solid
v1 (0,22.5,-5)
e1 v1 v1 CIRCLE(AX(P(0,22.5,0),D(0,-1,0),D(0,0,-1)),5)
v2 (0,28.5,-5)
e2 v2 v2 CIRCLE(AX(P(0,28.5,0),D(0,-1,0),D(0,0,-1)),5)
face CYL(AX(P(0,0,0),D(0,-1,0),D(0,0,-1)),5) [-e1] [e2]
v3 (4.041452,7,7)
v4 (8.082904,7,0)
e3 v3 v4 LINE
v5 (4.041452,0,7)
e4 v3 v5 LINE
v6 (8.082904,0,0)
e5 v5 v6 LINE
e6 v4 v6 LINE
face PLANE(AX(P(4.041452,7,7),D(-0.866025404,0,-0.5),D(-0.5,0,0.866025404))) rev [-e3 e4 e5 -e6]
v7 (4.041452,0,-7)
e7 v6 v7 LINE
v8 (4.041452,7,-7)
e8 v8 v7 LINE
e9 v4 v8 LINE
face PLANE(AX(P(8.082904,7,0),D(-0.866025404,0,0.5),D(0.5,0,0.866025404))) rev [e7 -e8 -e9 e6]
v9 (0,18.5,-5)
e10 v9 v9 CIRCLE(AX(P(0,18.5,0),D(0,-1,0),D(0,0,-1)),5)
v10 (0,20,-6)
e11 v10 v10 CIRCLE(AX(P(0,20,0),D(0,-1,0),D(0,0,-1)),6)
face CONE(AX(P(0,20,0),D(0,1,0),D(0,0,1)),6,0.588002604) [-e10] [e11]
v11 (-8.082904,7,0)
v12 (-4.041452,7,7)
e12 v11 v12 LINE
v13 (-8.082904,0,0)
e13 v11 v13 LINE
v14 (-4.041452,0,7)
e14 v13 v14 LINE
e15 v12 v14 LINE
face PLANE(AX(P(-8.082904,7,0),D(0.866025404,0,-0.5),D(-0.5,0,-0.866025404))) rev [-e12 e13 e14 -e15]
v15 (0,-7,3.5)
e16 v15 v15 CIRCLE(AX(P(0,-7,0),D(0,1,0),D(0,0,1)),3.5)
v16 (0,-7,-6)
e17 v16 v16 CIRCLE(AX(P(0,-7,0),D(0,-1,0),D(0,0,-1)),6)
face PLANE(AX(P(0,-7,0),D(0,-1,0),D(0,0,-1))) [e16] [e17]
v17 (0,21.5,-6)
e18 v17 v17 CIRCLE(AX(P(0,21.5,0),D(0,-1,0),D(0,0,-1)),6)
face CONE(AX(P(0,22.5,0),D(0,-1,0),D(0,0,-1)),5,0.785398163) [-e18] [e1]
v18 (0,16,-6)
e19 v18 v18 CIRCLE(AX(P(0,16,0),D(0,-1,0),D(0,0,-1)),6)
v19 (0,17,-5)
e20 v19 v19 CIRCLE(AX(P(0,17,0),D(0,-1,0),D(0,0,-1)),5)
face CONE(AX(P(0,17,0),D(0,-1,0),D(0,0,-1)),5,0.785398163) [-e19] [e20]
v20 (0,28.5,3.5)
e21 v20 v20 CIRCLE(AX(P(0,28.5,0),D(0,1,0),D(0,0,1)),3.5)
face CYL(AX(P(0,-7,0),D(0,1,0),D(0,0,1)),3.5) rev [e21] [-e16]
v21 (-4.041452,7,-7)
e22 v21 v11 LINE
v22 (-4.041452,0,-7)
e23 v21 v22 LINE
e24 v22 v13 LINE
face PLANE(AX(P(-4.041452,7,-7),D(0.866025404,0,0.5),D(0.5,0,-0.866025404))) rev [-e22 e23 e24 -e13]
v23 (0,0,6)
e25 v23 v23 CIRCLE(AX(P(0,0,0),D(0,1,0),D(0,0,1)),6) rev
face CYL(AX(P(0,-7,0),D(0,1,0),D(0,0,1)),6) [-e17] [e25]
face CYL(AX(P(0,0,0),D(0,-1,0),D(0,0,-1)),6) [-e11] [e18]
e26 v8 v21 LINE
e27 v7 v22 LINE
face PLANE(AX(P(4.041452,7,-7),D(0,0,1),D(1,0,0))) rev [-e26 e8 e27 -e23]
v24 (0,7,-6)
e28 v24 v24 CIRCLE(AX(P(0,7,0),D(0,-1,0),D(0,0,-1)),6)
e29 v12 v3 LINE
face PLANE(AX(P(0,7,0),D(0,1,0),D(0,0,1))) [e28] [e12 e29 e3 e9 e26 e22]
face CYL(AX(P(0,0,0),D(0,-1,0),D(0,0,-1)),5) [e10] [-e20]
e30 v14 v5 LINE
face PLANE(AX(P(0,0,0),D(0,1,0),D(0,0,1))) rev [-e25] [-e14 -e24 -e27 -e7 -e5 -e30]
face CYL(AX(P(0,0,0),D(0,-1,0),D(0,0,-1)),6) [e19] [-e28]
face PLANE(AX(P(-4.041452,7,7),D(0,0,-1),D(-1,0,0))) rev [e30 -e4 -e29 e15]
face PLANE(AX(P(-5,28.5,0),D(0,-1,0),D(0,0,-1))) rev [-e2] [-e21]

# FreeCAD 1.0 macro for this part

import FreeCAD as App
import Part
import Sketcher
Q = App.Units.Quantity


def add_polygon(sketch, points):
    """Adds a closed chain of lines whose ends are joined by coincident constraints."""
    first, n = sketch.GeometryCount, len(points)
    for a, b in zip(points, points[1:] + points[:1]):
        sketch.addGeometry(Part.LineSegment(App.Vector(*a, 0), App.Vector(*b, 0)), False)
    for i in range(n):
        sketch.addConstraint(Sketcher.Constraint("Coincident", first + i, 2, first + (i + 1) % n, 1))

doc = App.newDocument("Part")
body = doc.addObject("PartDesign::Body", "Body")

# Sketch on XZ plane
sketch1 = body.newObject("Sketcher::SketchObject", "Sketch")
sketch1.AttachmentSupport = (doc.getObject("XZ_Plane"), [""])
sketch1.MapMode = "FlatFace"
add_polygon(sketch1, [(8, 0), (4, -7), (-4, -7), (-8, 0), (-4, 7), (4, 7)])  # lines 0-5
sketch1.addConstraint(Sketcher.Constraint("Horizontal", 1))
sketch1.addConstraint(Sketcher.Constraint("Horizontal", 4))
sketch1.addConstraint(Sketcher.Constraint("Symmetric", 0, 2, 3, 2, -1, 1))
sketch1.addConstraint(Sketcher.Constraint("Symmetric", 2, 2, 5, 2, -1, 1))
sketch1.addConstraint(Sketcher.Constraint("PointOnObject", 2, 2, -1))
sketch1.addConstraint(Sketcher.Constraint("Parallel", 2, 5))
sketch1.addConstraint(Sketcher.Constraint("Vertical", 1, 2, 3, 2))
sketch1.addConstraint(Sketcher.Constraint("Angle", 0, Q("-120 deg")))
sketch1.addConstraint(Sketcher.Constraint("DistanceY", 0, 2, -1, 1, 7.0))
sketch1.addConstraint(Sketcher.Constraint("DistanceX", 1, 2, 1, 1, 8.082904))
pad1 = body.newObject("PartDesign::Pad", "Pad")
pad1.Profile = sketch1
pad1.Length = 7
pad1.Reversed = True

# Sketch on XY plane
sketch2 = body.newObject("Sketcher::SketchObject", "Sketch001")
sketch2.AttachmentSupport = (doc.getObject("XY_Plane"), [""])
sketch2.MapMode = "FlatFace"
add_polygon(sketch2, [(-6, 7), (0, 7), (0, 28.5), (-5, 28.5), (-5, 22.5), (-6, 21.5), (-6, 20), (-5, 18.5), (-5, 17), (-6, 16)])  # lines 0-9
sketch2.addConstraint(Sketcher.Constraint("Horizontal", 0))
sketch2.addConstraint(Sketcher.Constraint("Vertical", 1))
sketch2.addConstraint(Sketcher.Constraint("Horizontal", 2))
sketch2.addConstraint(Sketcher.Constraint("Vertical", 3))
sketch2.addConstraint(Sketcher.Constraint("Vertical", 5))
sketch2.addConstraint(Sketcher.Constraint("Vertical", 7))
sketch2.addConstraint(Sketcher.Constraint("Vertical", 9))
sketch2.addConstraint(Sketcher.Constraint("PointOnObject", 0, 2, -2))
sketch2.addConstraint(Sketcher.Constraint("Parallel", 4, 8))
sketch2.addConstraint(Sketcher.Constraint("Vertical", 3, 2, 6, 2))
sketch2.addConstraint(Sketcher.Constraint("Vertical", 5, 2, 8, 2))
sketch2.addConstraint(Sketcher.Constraint("Equal", 0, 3))
sketch2.addConstraint(Sketcher.Constraint("Equal", 5, 7))
sketch2.addConstraint(Sketcher.Constraint("DistanceX", 0, 1, 0, 2, 6.0))
sketch2.addConstraint(Sketcher.Constraint("DistanceX", 2, 2, 2, 1, 5.0))
sketch2.addConstraint(Sketcher.Constraint("DistanceY", 9, 2, 9, 1, 9.0))
sketch2.addConstraint(Sketcher.Constraint("Angle", 4, Q("-135 deg")))
sketch2.addConstraint(Sketcher.Constraint("DistanceY", 1, 1, 1, 2, 21.5))
sketch2.addConstraint(Sketcher.Constraint("DistanceY", 5, 2, 5, 1, 1.5))
sketch2.addConstraint(Sketcher.Constraint("DistanceY", -1, 1, 0, 2, 7.0))
revolution = body.newObject("PartDesign::Revolution", "Revolution")
revolution.Profile = sketch2
revolution.ReferenceAxis = (sketch2, ["V_Axis"])
revolution.Angle = 360

# Sketch on XZ plane
sketch3 = body.newObject("Sketcher::SketchObject", "Sketch002")
sketch3.AttachmentSupport = (doc.getObject("XZ_Plane"), [""])
sketch3.MapMode = "FlatFace"
sketch3.addGeometry(Part.Circle(App.Vector(0, 0, 0), App.Vector(0, 0, 1), 6), False)
sketch3.addConstraint(Sketcher.Constraint("Coincident", 0, 3, -1, 1))
sketch3.addConstraint(Sketcher.Constraint("Diameter", 0, 12.0))
pad2 = body.newObject("PartDesign::Pad", "Pad001")
pad2.Profile = sketch3
pad2.Length = 7

# Sketch on XZ plane
sketch4 = body.newObject("Sketcher::SketchObject", "Sketch003")
sketch4.AttachmentSupport = (doc.getObject("XZ_Plane"), [""])
sketch4.MapMode = "FlatFace"
sketch4.AttachmentOffset = App.Placement(App.Vector(0, 0, -28.5), App.Rotation())
sketch4.addGeometry(Part.Circle(App.Vector(0, 0, 0), App.Vector(0, 0, 1), 3.5), False)
sketch4.addConstraint(Sketcher.Constraint("Coincident", 0, 3, -1, 1))
sketch4.addConstraint(Sketcher.Constraint("Diameter", 0, 7.0))
pocket1 = body.newObject("PartDesign::Pocket", "Pocket")
pocket1.Profile = sketch4
pocket1.Type = "ThroughAll"
pocket1.Reversed = True

doc.recompute()
